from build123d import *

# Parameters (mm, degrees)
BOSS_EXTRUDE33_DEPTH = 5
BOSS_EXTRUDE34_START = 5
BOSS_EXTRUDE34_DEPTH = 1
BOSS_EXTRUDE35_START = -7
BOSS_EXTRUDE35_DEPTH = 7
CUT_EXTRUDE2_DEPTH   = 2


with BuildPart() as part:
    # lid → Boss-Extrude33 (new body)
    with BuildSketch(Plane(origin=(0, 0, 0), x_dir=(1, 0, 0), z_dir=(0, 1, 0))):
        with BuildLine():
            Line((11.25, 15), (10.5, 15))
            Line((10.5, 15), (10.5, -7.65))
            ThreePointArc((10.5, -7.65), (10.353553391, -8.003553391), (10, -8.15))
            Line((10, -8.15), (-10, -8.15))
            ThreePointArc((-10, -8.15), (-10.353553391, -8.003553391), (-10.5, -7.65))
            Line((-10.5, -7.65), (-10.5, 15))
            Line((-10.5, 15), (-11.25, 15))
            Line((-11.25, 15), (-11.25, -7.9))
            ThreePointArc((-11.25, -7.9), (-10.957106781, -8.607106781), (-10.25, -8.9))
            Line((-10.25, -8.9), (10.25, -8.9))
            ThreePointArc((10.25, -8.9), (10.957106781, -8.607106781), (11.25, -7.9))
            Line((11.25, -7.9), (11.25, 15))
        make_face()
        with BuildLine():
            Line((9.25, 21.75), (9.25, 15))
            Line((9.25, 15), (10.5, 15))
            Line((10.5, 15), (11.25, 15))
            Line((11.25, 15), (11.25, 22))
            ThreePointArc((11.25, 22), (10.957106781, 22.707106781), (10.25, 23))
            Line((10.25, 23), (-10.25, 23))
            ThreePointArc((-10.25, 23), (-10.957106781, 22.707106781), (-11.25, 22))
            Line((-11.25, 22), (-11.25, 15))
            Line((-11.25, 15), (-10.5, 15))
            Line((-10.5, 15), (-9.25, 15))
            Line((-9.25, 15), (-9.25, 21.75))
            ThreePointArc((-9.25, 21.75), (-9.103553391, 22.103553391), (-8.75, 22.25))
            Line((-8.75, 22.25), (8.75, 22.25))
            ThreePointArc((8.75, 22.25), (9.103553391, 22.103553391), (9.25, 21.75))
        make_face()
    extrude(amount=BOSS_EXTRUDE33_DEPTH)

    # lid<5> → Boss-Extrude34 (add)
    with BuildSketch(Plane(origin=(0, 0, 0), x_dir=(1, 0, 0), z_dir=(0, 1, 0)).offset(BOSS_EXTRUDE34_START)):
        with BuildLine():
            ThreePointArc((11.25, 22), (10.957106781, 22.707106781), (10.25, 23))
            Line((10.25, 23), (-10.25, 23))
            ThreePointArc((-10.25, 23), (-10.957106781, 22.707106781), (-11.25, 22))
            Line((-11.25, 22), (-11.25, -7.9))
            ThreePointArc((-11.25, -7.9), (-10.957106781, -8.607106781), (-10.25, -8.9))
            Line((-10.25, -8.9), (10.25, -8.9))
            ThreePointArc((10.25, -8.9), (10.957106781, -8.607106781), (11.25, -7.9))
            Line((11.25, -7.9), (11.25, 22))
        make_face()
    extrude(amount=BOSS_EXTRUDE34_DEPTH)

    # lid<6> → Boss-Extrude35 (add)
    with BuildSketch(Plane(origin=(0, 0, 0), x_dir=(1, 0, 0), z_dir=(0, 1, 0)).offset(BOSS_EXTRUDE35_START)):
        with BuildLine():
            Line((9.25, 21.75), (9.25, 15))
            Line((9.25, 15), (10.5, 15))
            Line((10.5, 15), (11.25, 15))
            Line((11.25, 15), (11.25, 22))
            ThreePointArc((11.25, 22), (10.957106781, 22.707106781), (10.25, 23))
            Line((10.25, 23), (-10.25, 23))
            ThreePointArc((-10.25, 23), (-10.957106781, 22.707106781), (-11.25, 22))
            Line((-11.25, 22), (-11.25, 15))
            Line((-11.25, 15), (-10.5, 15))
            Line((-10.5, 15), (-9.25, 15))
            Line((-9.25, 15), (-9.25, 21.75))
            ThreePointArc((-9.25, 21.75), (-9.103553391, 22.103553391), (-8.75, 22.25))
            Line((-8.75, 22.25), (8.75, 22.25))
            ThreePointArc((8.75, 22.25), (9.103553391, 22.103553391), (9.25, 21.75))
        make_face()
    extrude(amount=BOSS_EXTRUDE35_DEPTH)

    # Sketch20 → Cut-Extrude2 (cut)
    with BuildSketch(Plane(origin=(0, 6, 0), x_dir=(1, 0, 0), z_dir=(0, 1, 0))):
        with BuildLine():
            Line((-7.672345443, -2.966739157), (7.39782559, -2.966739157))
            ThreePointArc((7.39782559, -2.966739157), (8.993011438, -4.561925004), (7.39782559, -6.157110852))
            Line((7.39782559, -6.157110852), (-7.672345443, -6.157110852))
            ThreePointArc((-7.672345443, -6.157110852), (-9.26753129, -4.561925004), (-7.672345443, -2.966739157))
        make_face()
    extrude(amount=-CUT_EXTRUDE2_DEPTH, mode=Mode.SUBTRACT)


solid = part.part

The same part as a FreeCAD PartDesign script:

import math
import FreeCAD as App
import Part
import Sketcher

V = App.Vector
Q = App.Units.Quantity

doc = App.newDocument("Part")
body = doc.addObject("PartDesign::Body", "Body")

# Sketch on XZ plane
sketch1 = body.newObject("Sketcher::SketchObject", "Sketch")
sketch1.AttachmentSupport = (doc.getObject("XZ_Plane"), [""])
sketch1.MapMode = "FlatFace"
sketch1.addGeometry([
    Part.ArcOfCircle(Part.Circle(V(-10.25, 7.9, 0), V(0, 0, 1), 1), math.radians(90), math.radians(180)),  # 0
    Part.LineSegment(V(-10.25, 8.9, 0), V(10.25, 8.9, 0)),  # 1
    Part.ArcOfCircle(Part.Circle(V(10.25, 7.9, 0), V(0, 0, 1), 1), math.radians(0), math.radians(90)),  # 2
    Part.LineSegment(V(11.25, 7.9, 0), V(11.25, -22, 0)),  # 3
    Part.ArcOfCircle(Part.Circle(V(10.25, -22, 0), V(0, 0, 1), 1), math.radians(-90), math.radians(0)),  # 4
    Part.LineSegment(V(10.25, -23, 0), V(-10.25, -23, 0)),  # 5
    Part.ArcOfCircle(Part.Circle(V(-10.25, -22, 0), V(0, 0, 1), 1), math.radians(-180), math.radians(-90)),  # 6
    Part.LineSegment(V(-11.25, -22, 0), V(-11.25, 7.9, 0)),  # 7
    Part.LineSegment(V(10.5, -15, 0), V(10.5, 7.65, 0)),  # 8
    Part.ArcOfCircle(Part.Circle(V(10, 7.65, 0), V(0, 0, 1), 0.5), math.radians(0), math.radians(90)),  # 9
    Part.LineSegment(V(10, 8.15, 0), V(-10, 8.15, 0)),  # 10
    Part.ArcOfCircle(Part.Circle(V(-10, 7.65, 0), V(0, 0, 1), 0.5), math.radians(90), math.radians(180)),  # 11
    Part.LineSegment(V(-10.5, 7.65, 0), V(-10.5, -15, 0)),  # 12
    Part.LineSegment(V(-10.5, -15, 0), V(-9.25, -15, 0)),  # 13
    Part.LineSegment(V(-9.25, -15, 0), V(-9.25, -21.75, 0)),  # 14
    Part.ArcOfCircle(Part.Circle(V(-8.75, -21.75, 0), V(0, 0, 1), 0.5), math.radians(180), math.radians(270)),  # 15
    Part.LineSegment(V(-8.75, -22.25, 0), V(8.75, -22.25, 0)),  # 16
    Part.ArcOfCircle(Part.Circle(V(8.75, -21.75, 0), V(0, 0, 1), 0.5), math.radians(-90), math.radians(0)),  # 17
    Part.LineSegment(V(9.25, -21.75, 0), V(9.25, -15, 0)),  # 18
    Part.LineSegment(V(9.25, -15, 0), V(10.5, -15, 0)),  # 19
], False)
sketch1.addConstraint([
    Sketcher.Constraint("Tangent", 0, 1, 1, 1),
    Sketcher.Constraint("Tangent", 1, 2, 2, 2),
    Sketcher.Constraint("Tangent", 2, 1, 3, 1),
    Sketcher.Constraint("Tangent", 3, 2, 4, 2),
    Sketcher.Constraint("Tangent", 4, 1, 5, 1),
    Sketcher.Constraint("Tangent", 5, 2, 6, 2),
    Sketcher.Constraint("Tangent", 6, 1, 7, 1),
    Sketcher.Constraint("Tangent", 7, 2, 0, 2),
    Sketcher.Constraint("Tangent", 8, 2, 9, 1),
    Sketcher.Constraint("Tangent", 9, 2, 10, 1),
    Sketcher.Constraint("Tangent", 10, 2, 11, 1),
    Sketcher.Constraint("Tangent", 11, 2, 12, 1),
    Sketcher.Constraint("Coincident", 12, 2, 13, 1),
    Sketcher.Constraint("Coincident", 13, 2, 14, 1),
    Sketcher.Constraint("Tangent", 14, 2, 15, 1),
    Sketcher.Constraint("Tangent", 15, 2, 16, 1),
    Sketcher.Constraint("Tangent", 16, 2, 17, 1),
    Sketcher.Constraint("Tangent", 17, 2, 18, 1),
    Sketcher.Constraint("Coincident", 18, 2, 19, 1),
    Sketcher.Constraint("Coincident", 19, 2, 8, 1),
    Sketcher.Constraint("Horizontal", 1),
    Sketcher.Constraint("Vertical", 3),
    Sketcher.Constraint("Horizontal", 5),
    Sketcher.Constraint("Vertical", 7),
    Sketcher.Constraint("Vertical", 8),
    Sketcher.Constraint("Horizontal", 10),
    Sketcher.Constraint("Vertical", 12),
    Sketcher.Constraint("Horizontal", 13),
    Sketcher.Constraint("Vertical", 14),
    Sketcher.Constraint("Horizontal", 16),
    Sketcher.Constraint("Vertical", 18),
    Sketcher.Constraint("Horizontal", 19),
    Sketcher.Constraint("Equal", 0, 2),
    Sketcher.Constraint("Equal", 2, 4),
    Sketcher.Constraint("Equal", 4, 6),
    Sketcher.Constraint("Equal", 9, 11),
    Sketcher.Constraint("Equal", 11, 15),
    Sketcher.Constraint("Equal", 15, 17),
    Sketcher.Constraint("Symmetric", 13, 2, 18, 2, -2),
    Sketcher.Constraint("Equal", 13, 19),
    Sketcher.Constraint("Radius", 0, Q("1 mm")),
    Sketcher.Constraint("Radius", 9, Q("0.5 mm")),
    Sketcher.Constraint("DistanceX", 10, 2, 10, 1, Q("20 mm")),
    Sketcher.Constraint("DistanceX", 1, 1, 1, 2, Q("20.5 mm")),
    Sketcher.Constraint("DistanceX", 16, 1, 16, 2, Q("17.5 mm")),
    Sketcher.Constraint("DistanceY", 3, 2, 3, 1, Q("29.9 mm")),
    Sketcher.Constraint("DistanceY", 4, 3, -1, 1, Q("22 mm")),
    Sketcher.Constraint("DistanceY", 12, 2, -1, 1, Q("15 mm")),
    Sketcher.Constraint("DistanceX", 15, 3, 4, 3, Q("19 mm")),
    Sketcher.Constraint("DistanceY", 8, 1, 8, 2, Q("22.65 mm")),
    Sketcher.Constraint("DistanceY", 14, 2, 14, 1, Q("6.75 mm")),
])
pad1 = body.newObject("PartDesign::Pad", "Pad")
pad1.Profile = sketch1
pad1.Length = 5
pad1.Reversed = True

# Sketch on XZ plane
sketch2 = body.newObject("Sketcher::SketchObject", "Sketch001")
sketch2.AttachmentSupport = (doc.getObject("XZ_Plane"), [""])
sketch2.MapMode = "FlatFace"
sketch2.AttachmentOffset = App.Placement(V(0, 0, -5), App.Rotation())
sketch2.addGeometry([
    Part.ArcOfCircle(Part.Circle(V(10.25, -22, 0), V(0, 0, 1), 1), math.radians(-90), math.radians(0)),  # 0
    Part.LineSegment(V(10.25, -23, 0), V(-10.25, -23, 0)),  # 1
    Part.ArcOfCircle(Part.Circle(V(-10.25, -22, 0), V(0, 0, 1), 1), math.radians(-180), math.radians(-90)),  # 2
    Part.LineSegment(V(-11.25, -22, 0), V(-11.25, 7.9, 0)),  # 3
    Part.ArcOfCircle(Part.Circle(V(-10.25, 7.9, 0), V(0, 0, 1), 1), math.radians(90), math.radians(180)),  # 4
    Part.LineSegment(V(-10.25, 8.9, 0), V(10.25, 8.9, 0)),  # 5
    Part.ArcOfCircle(Part.Circle(V(10.25, 7.9, 0), V(0, 0, 1), 1), math.radians(0), math.radians(90)),  # 6
    Part.LineSegment(V(11.25, 7.9, 0), V(11.25, -22, 0)),  # 7
], False)
sketch2.addConstraint([
    Sketcher.Constraint("Tangent", 0, 1, 1, 1),
    Sketcher.Constraint("Tangent", 1, 2, 2, 2),
    Sketcher.Constraint("Tangent", 2, 1, 3, 1),
    Sketcher.Constraint("Tangent", 3, 2, 4, 2),
    Sketcher.Constraint("Tangent", 4, 1, 5, 1),
    Sketcher.Constraint("Tangent", 5, 2, 6, 2),
    Sketcher.Constraint("Tangent", 6, 1, 7, 1),
    Sketcher.Constraint("Tangent", 7, 2, 0, 2),
    Sketcher.Constraint("Horizontal", 1),
    Sketcher.Constraint("Vertical", 3),
    Sketcher.Constraint("Horizontal", 5),
    Sketcher.Constraint("Vertical", 7),
    Sketcher.Constraint("Equal", 0, 2),
    Sketcher.Constraint("Equal", 2, 4),
    Sketcher.Constraint("Equal", 4, 6),
    Sketcher.Constraint("Radius", 0, Q("1 mm")),
    Sketcher.Constraint("DistanceX", 1, 2, 1, 1, Q("20.5 mm")),
    Sketcher.Constraint("DistanceY", 3, 1, 3, 2, Q("29.9 mm")),
    Sketcher.Constraint("DistanceY", 0, 3, -1, 1, Q("22 mm")),
    Sketcher.Constraint("DistanceX", -1, 1, 0, 3, Q("10.25 mm")),
])
pad2 = body.newObject("PartDesign::Pad", "Pad001")
pad2.Profile = sketch2
pad2.Length = 1
pad2.Reversed = True

# Sketch on XZ plane
sketch3 = body.newObject("Sketcher::SketchObject", "Sketch002")
sketch3.AttachmentSupport = (doc.getObject("XZ_Plane"), [""])
sketch3.MapMode = "FlatFace"
sketch3.AttachmentOffset = App.Placement(V(0, 0, 7), App.Rotation())
sketch3.addGeometry([
    Part.LineSegment(V(9.25, -21.75, 0), V(9.25, -15, 0)),  # 0
    Part.LineSegment(V(9.25, -15, 0), V(11.25, -15, 0)),  # 1
    Part.LineSegment(V(11.25, -15, 0), V(11.25, -22, 0)),  # 2
    Part.ArcOfCircle(Part.Circle(V(10.25, -22, 0), V(0, 0, 1), 1), math.radians(-90), math.radians(0)),  # 3
    Part.LineSegment(V(10.25, -23, 0), V(-10.25, -23, 0)),  # 4
    Part.ArcOfCircle(Part.Circle(V(-10.25, -22, 0), V(0, 0, 1), 1), math.radians(-180), math.radians(-90)),  # 5
    Part.LineSegment(V(-11.25, -22, 0), V(-11.25, -15, 0)),  # 6
    Part.LineSegment(V(-11.25, -15, 0), V(-9.25, -15, 0)),  # 7
    Part.LineSegment(V(-9.25, -15, 0), V(-9.25, -21.75, 0)),  # 8
    Part.ArcOfCircle(Part.Circle(V(-8.75, -21.75, 0), V(0, 0, 1), 0.5), math.radians(180), math.radians(270)),  # 9
    Part.LineSegment(V(-8.75, -22.25, 0), V(8.75, -22.25, 0)),  # 10
    Part.ArcOfCircle(Part.Circle(V(8.75, -21.75, 0), V(0, 0, 1), 0.5), math.radians(-90), math.radians(0)),  # 11
], False)
sketch3.addConstraint([
    Sketcher.Constraint("Coincident", 0, 2, 1, 1),
    Sketcher.Constraint("Coincident", 1, 2, 2, 1),
    Sketcher.Constraint("Tangent", 2, 2, 3, 2),
    Sketcher.Constraint("Tangent", 3, 1, 4, 1),
    Sketcher.Constraint("Tangent", 4, 2, 5, 2),
    Sketcher.Constraint("Tangent", 5, 1, 6, 1),
    Sketcher.Constraint("Coincident", 6, 2, 7, 1),
    Sketcher.Constraint("Coincident", 7, 2, 8, 1),
    Sketcher.Constraint("Tangent", 8, 2, 9, 1),
    Sketcher.Constraint("Tangent", 9, 2, 10, 1),
    Sketcher.Constraint("Tangent", 10, 2, 11, 1),
    Sketcher.Constraint("Tangent", 11, 2, 0, 1),
    Sketcher.Constraint("Vertical", 0),
    Sketcher.Constraint("Horizontal", 1),
    Sketcher.Constraint("Vertical", 2),
    Sketcher.Constraint("Horizontal", 4),
    Sketcher.Constraint("Vertical", 6),
    Sketcher.Constraint("Horizontal", 7),
    Sketcher.Constraint("Vertical", 8),
    Sketcher.Constraint("Horizontal", 10),
    Sketcher.Constraint("Equal", 3, 5),
    Sketcher.Constraint("Equal", 9, 11),
    Sketcher.Constraint("Symmetric", 1, 2, 6, 2, -2),
    Sketcher.Constraint("Equal", 1, 7),
    Sketcher.Constraint("Radius", 3, Q("1 mm")),
    Sketcher.Constraint("Radius", 9, Q("0.5 mm")),
    Sketcher.Constraint("DistanceX", 1, 1, 1, 2, Q("2 mm")),
    Sketcher.Constraint("DistanceY", 2, 2, 2, 1, Q("7 mm")),
    Sketcher.Constraint("DistanceX", 4, 2, 4, 1, Q("20.5 mm")),
    Sketcher.Constraint("DistanceY", 3, 3, -1, 1, Q("22 mm")),
    Sketcher.Constraint("DistanceY", 0, 1, 0, 2, Q("6.75 mm")),
])
pad3 = body.newObject("PartDesign::Pad", "Pad002")
pad3.Profile = sketch3
pad3.Length = 7
pad3.Reversed = True

# Sketch on XZ plane
sketch4 = body.newObject("Sketcher::SketchObject", "Sketch003")
sketch4.AttachmentSupport = (doc.getObject("XZ_Plane"), [""])
sketch4.MapMode = "FlatFace"
sketch4.AttachmentOffset = App.Placement(V(0, 0, -6), App.Rotation())
sketch4.addGeometry([
    Part.LineSegment(V(7.397826, 2.966739, 0), V(-7.672345, 2.966739, 0)),
    Part.ArcOfCircle(Part.Circle(V(-7.672345, 4.561925, 0), V(0, 0, 1), 1.595186), math.radians(90), math.radians(270)),
    Part.LineSegment(V(-7.672345, 6.157111, 0), V(7.397826, 6.157111, 0)),
    Part.ArcOfCircle(Part.Circle(V(7.397826, 4.561925, 0), V(0, 0, 1), 1.595186), math.radians(-90), math.radians(90)),
], False)
sketch4.addConstraint([
    Sketcher.Constraint("Tangent", 0, 2, 1, 2),
    Sketcher.Constraint("Tangent", 1, 1, 2, 1),
    Sketcher.Constraint("Tangent", 2, 2, 3, 2),
    Sketcher.Constraint("Tangent", 3, 1, 0, 1),
    Sketcher.Constraint("Horizontal", 0),
    Sketcher.Constraint("Horizontal", 2),
    Sketcher.Constraint("Radius", 1, Q("1.595186 mm")),
    Sketcher.Constraint("DistanceX", 0, 2, 0, 1, Q("15.070171 mm")),
    Sketcher.Constraint("DistanceY", -1, 1, 0, 2, Q("2.966739 mm")),
    Sketcher.Constraint("DistanceX", 1, 3, -1, 1, Q("7.672345 mm")),
])
pocket1 = body.newObject("PartDesign::Pocket", "Pocket")
pocket1.Profile = sketch4
pocket1.Length = 2
pocket1.Reversed = True

doc.recompute()
